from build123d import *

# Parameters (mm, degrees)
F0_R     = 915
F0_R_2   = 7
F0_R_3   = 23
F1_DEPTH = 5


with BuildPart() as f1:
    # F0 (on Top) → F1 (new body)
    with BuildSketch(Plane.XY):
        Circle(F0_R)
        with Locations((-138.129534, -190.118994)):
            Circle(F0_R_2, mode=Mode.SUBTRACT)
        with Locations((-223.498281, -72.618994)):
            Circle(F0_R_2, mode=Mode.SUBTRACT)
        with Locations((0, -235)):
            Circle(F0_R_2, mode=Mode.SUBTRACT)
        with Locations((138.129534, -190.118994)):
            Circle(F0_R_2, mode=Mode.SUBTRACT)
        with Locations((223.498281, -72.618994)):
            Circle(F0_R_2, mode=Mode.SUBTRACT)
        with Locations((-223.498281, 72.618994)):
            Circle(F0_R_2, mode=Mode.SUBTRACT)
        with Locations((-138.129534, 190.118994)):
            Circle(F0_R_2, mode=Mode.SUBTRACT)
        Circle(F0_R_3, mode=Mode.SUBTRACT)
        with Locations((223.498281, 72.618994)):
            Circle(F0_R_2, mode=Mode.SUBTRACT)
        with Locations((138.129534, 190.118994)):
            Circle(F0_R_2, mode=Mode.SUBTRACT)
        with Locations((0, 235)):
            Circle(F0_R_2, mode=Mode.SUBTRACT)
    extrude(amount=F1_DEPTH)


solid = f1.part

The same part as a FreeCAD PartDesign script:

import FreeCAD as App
import Part
import Sketcher
from FreeCAD import Vector
Q = App.Units.Quantity

doc = App.newDocument("Part")
body = doc.addObject("PartDesign::Body", "Body")

# Sketch on XY plane
sketch1 = doc.addObject("Sketcher::SketchObject", "Sketch")
body.addObject(sketch1)
sketch1.AttachmentSupport = (doc.XY_Plane, [""])
sketch1.MapMode = "FlatFace"
sketch1.addGeometry([
    Part.Circle(Vector(0, 0, 0), Vector(0, 0, 1), 915),  # 0
    Part.Circle(Vector(-138, -190, 0), Vector(0, 0, 1), 7),  # 1
    Part.Circle(Vector(-223, -73, 0), Vector(0, 0, 1), 7),  # 2
    Part.Circle(Vector(0, -235, 0), Vector(0, 0, 1), 7),  # 3
    Part.Circle(Vector(138, -190, 0), Vector(0, 0, 1), 7),  # 4
    Part.Circle(Vector(223, -73, 0), Vector(0, 0, 1), 7),  # 5
    Part.Circle(Vector(-223, 73, 0), Vector(0, 0, 1), 7),  # 6
    Part.Circle(Vector(-138, 190, 0), Vector(0, 0, 1), 7),  # 7
    Part.Circle(Vector(0, 0, 0), Vector(0, 0, 1), 23),  # 8
    Part.Circle(Vector(223, 73, 0), Vector(0, 0, 1), 7),  # 9
    Part.Circle(Vector(0, 235, 0), Vector(0, 0, 1), 7),  # 10
    Part.Circle(Vector(138, 190, 0), Vector(0, 0, 1), 7),  # 11
], False)
sketch1.addConstraint([
    Sketcher.Constraint("Coincident", 0, 3, -1, 1),
    Sketcher.Constraint("Coincident", 8, 3, -1, 1),
    Sketcher.Constraint("Equal", 1, 2),
    Sketcher.Constraint("Equal", 2, 3),
    Sketcher.Constraint("Equal", 3, 4),
    Sketcher.Constraint("Equal", 4, 5),
    Sketcher.Constraint("Equal", 5, 6),
    Sketcher.Constraint("Equal", 6, 7),
    Sketcher.Constraint("Equal", 7, 9),
    Sketcher.Constraint("Equal", 9, 10),
    Sketcher.Constraint("Equal", 10, 11),
    Sketcher.Constraint("Symmetric", 5, 3, 6, 3, -1, 1),
    Sketcher.Constraint("Symmetric", 4, 3, 7, 3, -1, 1),
    Sketcher.Constraint("Symmetric", 2, 3, 9, 3, -1, 1),
    Sketcher.Constraint("Symmetric", 3, 3, 10, 3, -1, 1),
    Sketcher.Constraint("Symmetric", 1, 3, 11, 3, -1, 1),
    Sketcher.Constraint("Symmetric", 1, 3, 4, 3, -2),
    Sketcher.Constraint("Symmetric", 2, 3, 5, 3, -2),
    Sketcher.Constraint("PointOnObject", 3, 3, -2),
    Sketcher.Constraint("Diameter", 0, Q("1830 mm")),
    Sketcher.Constraint("Diameter", 1, Q("14 mm")),
    Sketcher.Constraint("Diameter", 8, Q("46 mm")),
    Sketcher.Constraint("DistanceY", 3, 3, -1, 1, Q("235 mm")),
    Sketcher.Constraint("DistanceY", 1, 3, 2, 3, Q("117.5 mm")),
    Sketcher.Constraint("DistanceX", 2, 3, -1, 1, Q("223.498281 mm")),
    Sketcher.Constraint("DistanceX", 1, 3, 4, 3, Q("276.259068 mm")),
    Sketcher.Constraint("DistanceY", 2, 3, 6, 3, Q("145.237988 mm")),
])
pad1 = doc.addObject("PartDesign::Pad", "Pad")
body.addObject(pad1)
pad1.Profile = sketch1
pad1.Length = 5

doc.recompute()
